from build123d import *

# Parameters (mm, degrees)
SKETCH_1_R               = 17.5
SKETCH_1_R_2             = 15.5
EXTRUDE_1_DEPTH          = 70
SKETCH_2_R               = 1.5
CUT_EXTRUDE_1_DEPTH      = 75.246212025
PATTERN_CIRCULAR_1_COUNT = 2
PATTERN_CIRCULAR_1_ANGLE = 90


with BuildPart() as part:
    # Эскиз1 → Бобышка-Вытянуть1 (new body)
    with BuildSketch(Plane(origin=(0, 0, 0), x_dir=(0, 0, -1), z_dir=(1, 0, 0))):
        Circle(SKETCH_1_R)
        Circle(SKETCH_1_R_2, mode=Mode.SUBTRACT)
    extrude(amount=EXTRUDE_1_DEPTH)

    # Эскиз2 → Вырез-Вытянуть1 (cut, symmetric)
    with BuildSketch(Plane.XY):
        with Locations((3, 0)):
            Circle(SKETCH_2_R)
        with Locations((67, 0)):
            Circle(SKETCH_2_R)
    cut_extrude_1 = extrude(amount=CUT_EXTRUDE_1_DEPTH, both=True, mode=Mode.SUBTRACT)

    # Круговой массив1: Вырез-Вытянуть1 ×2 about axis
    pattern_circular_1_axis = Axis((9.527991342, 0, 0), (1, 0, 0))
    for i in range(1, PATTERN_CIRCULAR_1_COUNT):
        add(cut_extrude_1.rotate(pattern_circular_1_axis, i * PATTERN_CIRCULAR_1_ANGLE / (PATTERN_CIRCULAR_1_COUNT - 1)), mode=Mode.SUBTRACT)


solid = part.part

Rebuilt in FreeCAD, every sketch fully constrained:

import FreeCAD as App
import Part
import Sketcher

V = App.Vector

doc = App.newDocument("Part")
body = doc.addObject("PartDesign::Body", "Body")

# Sketch on YZ plane
sketch1 = doc.addObject("Sketcher::SketchObject", "Sketch")
body.addObject(sketch1)
sketch1.AttachmentSupport = (doc.YZ_Plane, [""])
sketch1.MapMode = "FlatFace"
sketch1.addGeometry(Part.Circle(V(0, 0, 0), V(0, 0, 1), 18), False)
sketch1.addGeometry(Part.Circle(V(0, 0, 0), V(0, 0, 1), 16), False)
sketch1.addConstraint(Sketcher.Constraint("Coincident", 0, 3, -1, 1))
sketch1.addConstraint(Sketcher.Constraint("Coincident", 1, 3, -1, 1))
sketch1.addConstraint(Sketcher.Constraint("Diameter", 0, 35.0))
sketch1.addConstraint(Sketcher.Constraint("Diameter", 1, 31.0))
pad1 = doc.addObject("PartDesign::Pad", "Pad")
body.addObject(pad1)
pad1.Profile = sketch1
pad1.Length = 70

# Sketch on XY plane
sketch2 = doc.addObject("Sketcher::SketchObject", "Sketch001")
body.addObject(sketch2)
sketch2.AttachmentSupport = (doc.XY_Plane, [""])
sketch2.MapMode = "FlatFace"
sketch2.addGeometry(Part.Circle(V(3, 0, 0), V(0, 0, 1), 1.5), False)
sketch2.addGeometry(Part.Circle(V(67, 0, 0), V(0, 0, 1), 1.5), False)
sketch2.addConstraint(Sketcher.Constraint("Equal", 0, 1))
sketch2.addConstraint(Sketcher.Constraint("PointOnObject", 0, 3, -1))
sketch2.addConstraint(Sketcher.Constraint("PointOnObject", 1, 3, -1))
sketch2.addConstraint(Sketcher.Constraint("Diameter", 0, 3.0))
sketch2.addConstraint(Sketcher.Constraint("DistanceX", -1, 1, 0, 3, 3.0))
sketch2.addConstraint(Sketcher.Constraint("DistanceX", -1, 1, 1, 3, 67.0))
pocket1 = doc.addObject("PartDesign::Pocket", "Pocket")
body.addObject(pocket1)
pocket1.Profile = sketch2
pocket1.Length = 150.492424
pocket1.Midplane = True
doc.recompute()

polarpattern = doc.addObject("PartDesign::PolarPattern", "PolarPattern")
body.addObject(polarpattern)
polarpattern.Originals = [pocket1]
polarpattern.Axis = (doc.X_Axis, [""])
polarpattern.Angle = 90
polarpattern.Occurrences = 2
body.Tip = polarpattern

doc.recompute()
